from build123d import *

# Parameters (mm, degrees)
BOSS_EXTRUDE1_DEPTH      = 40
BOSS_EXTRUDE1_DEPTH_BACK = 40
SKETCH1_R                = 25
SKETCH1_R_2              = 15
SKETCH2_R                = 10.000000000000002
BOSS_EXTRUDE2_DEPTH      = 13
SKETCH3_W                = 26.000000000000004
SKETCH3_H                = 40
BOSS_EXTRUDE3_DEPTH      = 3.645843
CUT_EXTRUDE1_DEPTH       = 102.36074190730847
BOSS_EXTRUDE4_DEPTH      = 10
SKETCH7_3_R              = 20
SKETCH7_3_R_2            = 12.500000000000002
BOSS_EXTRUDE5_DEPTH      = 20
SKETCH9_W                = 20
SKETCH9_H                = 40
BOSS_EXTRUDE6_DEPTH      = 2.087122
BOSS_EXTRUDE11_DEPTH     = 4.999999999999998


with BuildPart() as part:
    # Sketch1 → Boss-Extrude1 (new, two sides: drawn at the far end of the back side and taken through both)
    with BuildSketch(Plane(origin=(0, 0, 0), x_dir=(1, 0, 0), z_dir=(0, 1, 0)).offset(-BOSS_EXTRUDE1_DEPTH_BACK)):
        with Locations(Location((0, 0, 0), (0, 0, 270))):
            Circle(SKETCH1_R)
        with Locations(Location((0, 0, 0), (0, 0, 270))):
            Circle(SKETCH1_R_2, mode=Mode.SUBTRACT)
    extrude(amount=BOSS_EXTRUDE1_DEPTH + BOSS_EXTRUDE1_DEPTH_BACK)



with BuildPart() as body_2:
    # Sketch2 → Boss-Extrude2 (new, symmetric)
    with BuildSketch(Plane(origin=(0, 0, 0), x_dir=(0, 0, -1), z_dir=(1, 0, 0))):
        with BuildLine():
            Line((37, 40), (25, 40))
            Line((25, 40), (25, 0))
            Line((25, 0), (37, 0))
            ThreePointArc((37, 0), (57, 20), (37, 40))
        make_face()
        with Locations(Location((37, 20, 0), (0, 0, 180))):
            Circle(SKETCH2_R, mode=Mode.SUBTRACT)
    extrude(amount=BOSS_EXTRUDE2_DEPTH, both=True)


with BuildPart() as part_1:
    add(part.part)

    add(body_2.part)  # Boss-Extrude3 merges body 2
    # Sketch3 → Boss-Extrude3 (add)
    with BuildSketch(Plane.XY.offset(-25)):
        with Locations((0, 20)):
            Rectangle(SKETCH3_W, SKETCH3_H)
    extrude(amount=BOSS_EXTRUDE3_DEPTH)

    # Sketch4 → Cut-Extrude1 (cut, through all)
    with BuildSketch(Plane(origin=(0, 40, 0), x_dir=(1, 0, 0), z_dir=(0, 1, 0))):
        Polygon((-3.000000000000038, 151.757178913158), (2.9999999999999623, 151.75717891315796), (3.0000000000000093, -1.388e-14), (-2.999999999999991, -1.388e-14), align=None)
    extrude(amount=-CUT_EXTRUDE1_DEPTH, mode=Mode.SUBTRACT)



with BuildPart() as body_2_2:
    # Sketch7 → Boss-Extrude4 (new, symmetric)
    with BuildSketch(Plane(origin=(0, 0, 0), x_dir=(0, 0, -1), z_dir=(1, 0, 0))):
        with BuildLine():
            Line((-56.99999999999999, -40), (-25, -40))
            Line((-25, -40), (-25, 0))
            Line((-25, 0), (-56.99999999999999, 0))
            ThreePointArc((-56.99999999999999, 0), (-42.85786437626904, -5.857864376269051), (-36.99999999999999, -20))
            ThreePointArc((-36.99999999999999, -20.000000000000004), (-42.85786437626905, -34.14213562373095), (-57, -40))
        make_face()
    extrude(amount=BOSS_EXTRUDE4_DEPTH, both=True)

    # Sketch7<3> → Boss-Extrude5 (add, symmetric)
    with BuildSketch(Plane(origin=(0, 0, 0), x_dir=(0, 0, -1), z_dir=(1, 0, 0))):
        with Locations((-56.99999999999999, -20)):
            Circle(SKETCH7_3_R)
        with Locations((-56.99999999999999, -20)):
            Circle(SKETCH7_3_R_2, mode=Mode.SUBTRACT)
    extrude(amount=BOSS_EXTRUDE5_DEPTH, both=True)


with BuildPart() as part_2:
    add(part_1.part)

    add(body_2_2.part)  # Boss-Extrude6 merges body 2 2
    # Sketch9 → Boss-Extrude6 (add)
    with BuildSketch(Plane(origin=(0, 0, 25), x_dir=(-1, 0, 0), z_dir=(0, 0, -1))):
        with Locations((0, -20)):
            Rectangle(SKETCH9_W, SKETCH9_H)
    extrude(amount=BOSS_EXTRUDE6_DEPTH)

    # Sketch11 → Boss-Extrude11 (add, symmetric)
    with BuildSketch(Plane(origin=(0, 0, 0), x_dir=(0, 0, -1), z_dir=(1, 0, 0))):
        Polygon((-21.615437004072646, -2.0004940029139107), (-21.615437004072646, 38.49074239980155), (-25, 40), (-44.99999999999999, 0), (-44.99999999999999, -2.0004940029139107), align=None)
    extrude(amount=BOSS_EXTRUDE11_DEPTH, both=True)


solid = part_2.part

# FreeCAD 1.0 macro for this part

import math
import FreeCAD as App
import Part
import Sketcher
from FreeCAD import Vector
Q = App.Units.Quantity

doc = App.newDocument("Part")
params = doc.addObject("Spreadsheet::Sheet", "Params")
for row, (alias, value) in enumerate([
    ("sketch1_diameter", "50 mm"),
    ("sketch1_diameter2", "30 mm"),
    ("pad1_length", "40 mm"),
    ("pad1_length2", "40 mm"),
    ("sketch2_diameter", "20 mm"),
    ("sketch2_radius", "20 mm"),
    ("sketch2_height", "12 mm"),
    ("pad2_length", "26 mm"),
    ("sketch3_width", "26 mm"),
    ("sketch3_height", "40 mm"),
    ("pad3_length", "3.645843 mm"),
    ("sketch4_width", "6 mm"),
    ("sketch5_radius", "20 mm"),
    ("sketch5_height", "32 mm"),
    ("pad4_length", "20 mm"),
    ("sketch6_diameter", "40 mm"),
    ("sketch6_diameter2", "25 mm"),
    ("pad5_length", "40 mm"),
    ("sketch7_width", "20 mm"),
    ("sketch7_height", "40 mm"),
    ("pad6_length", "2.087122 mm"),
    ("pad7_length", "10 mm"),
], start=1):
    params.set(f"A{row}", alias)
    params.set(f"B{row}", "=" + value)
    params.setAlias(f"B{row}", alias)

body = doc.addObject("PartDesign::Body", "Body")

# Sketch on XZ plane
sketch1 = body.newObject("Sketcher::SketchObject", "Sketch")
sketch1.AttachmentSupport = (doc.getObject("XZ_Plane"), [""])
sketch1.MapMode = "FlatFace"
sketch1.addGeometry(Part.Circle(Vector(0, 0, 0), Vector(0, 0, 1), 25), False)
sketch1.addGeometry(Part.Circle(Vector(0, 0, 0), Vector(0, 0, 1), 15), False)
sketch1.addConstraint(Sketcher.Constraint("Coincident", 0, 3, -1, 1))
sketch1.addConstraint(Sketcher.Constraint("Coincident", 1, 3, -1, 1))
sketch1.addConstraint(Sketcher.Constraint("Diameter", 0, Q("50 mm")))
sketch1.addConstraint(Sketcher.Constraint("Diameter", 1, Q("30 mm")))
sketch1.setExpression("Constraints[2]", "Params.sketch1_diameter")
sketch1.setExpression("Constraints[3]", "Params.sketch1_diameter2")
pad1 = body.newObject("PartDesign::Pad", "Pad")
pad1.Profile = sketch1
pad1.Type = "TwoLengths"
pad1.setExpression("Length", "Params.pad1_length")
pad1.setExpression("Length2", "Params.pad1_length2")
pad1.Reversed = True
body2 = doc.addObject("PartDesign::Body", "Body001")

# Sketch on YZ plane
sketch2 = body2.newObject("Sketcher::SketchObject", "Sketch001")
sketch2.AttachmentSupport = (doc.getObject("YZ_Plane001"), [""])
sketch2.MapMode = "FlatFace"
sketch2.addGeometry(Part.LineSegment(Vector(40, -37, 0), Vector(40, -25, 0)), False)
sketch2.addGeometry(Part.LineSegment(Vector(40, -25, 0), Vector(0, -25, 0)), False)
sketch2.addGeometry(Part.LineSegment(Vector(0, -25, 0), Vector(0, -37, 0)), False)
sketch2.addGeometry(Part.ArcOfCircle(Part.Circle(Vector(20, -37, 0), Vector(0, 0, 1), 20), math.radians(180), math.radians(360)), False)
sketch2.addGeometry(Part.Circle(Vector(20, -37, 0), Vector(0, 0, 1), 10), False)
sketch2.addConstraint(Sketcher.Constraint("Coincident", 0, 2, 1, 1))
sketch2.addConstraint(Sketcher.Constraint("Coincident", 1, 2, 2, 1))
sketch2.addConstraint(Sketcher.Constraint("Tangent", 2, 2, 3, 1))
sketch2.addConstraint(Sketcher.Constraint("Tangent", 3, 2, 0, 1))
sketch2.addConstraint(Sketcher.Constraint("Vertical", 0))
sketch2.addConstraint(Sketcher.Constraint("Horizontal", 1))
sketch2.addConstraint(Sketcher.Constraint("Vertical", 2))
sketch2.addConstraint(Sketcher.Constraint("Coincident", 4, 3, 3, 3))
sketch2.addConstraint(Sketcher.Constraint("PointOnObject", 1, 2, -2))
sketch2.addConstraint(Sketcher.Constraint("Diameter", 4, Q("20 mm")))
sketch2.addConstraint(Sketcher.Constraint("Radius", 3, Q("20 mm")))
sketch2.addConstraint(Sketcher.Constraint("DistanceY", 0, 1, 0, 2, Q("12 mm")))
sketch2.addConstraint(Sketcher.Constraint("DistanceY", 3, 3, -1, 1, Q("37 mm")))
sketch2.setExpression("Constraints[9]", "Params.sketch2_diameter")
sketch2.setExpression("Constraints[10]", "Params.sketch2_radius")
sketch2.setExpression("Constraints[11]", "Params.sketch2_height")
pad2 = body2.newObject("PartDesign::Pad", "Pad001")
pad2.Profile = sketch2
pad2.setExpression("Length", "Params.pad2_length")
pad2.Midplane = True
body.AllowCompound = True
doc.recompute()

boolean = body.newObject("PartDesign::Boolean", "Boolean")
boolean.Type = "Fuse"
boolean.addObjects([body2])

# Sketch on XY plane
sketch3 = body.newObject("Sketcher::SketchObject", "Sketch002")
sketch3.AttachmentSupport = (doc.getObject("XY_Plane"), [""])
sketch3.MapMode = "FlatFace"
sketch3.AttachmentOffset = App.Placement(Vector(0, 0, -25), App.Rotation())
sketch3.addGeometry(Part.LineSegment(Vector(-13, 40, 0), Vector(-13, 0, 0)), False)
sketch3.addGeometry(Part.LineSegment(Vector(-13, 0, 0), Vector(13, 0, 0)), False)
sketch3.addGeometry(Part.LineSegment(Vector(13, 0, 0), Vector(13, 40, 0)), False)
sketch3.addGeometry(Part.LineSegment(Vector(13, 40, 0), Vector(-13, 40, 0)), False)
sketch3.addConstraint(Sketcher.Constraint("Coincident", 0, 2, 1, 1))
sketch3.addConstraint(Sketcher.Constraint("Coincident", 1, 2, 2, 1))
sketch3.addConstraint(Sketcher.Constraint("Coincident", 2, 2, 3, 1))
sketch3.addConstraint(Sketcher.Constraint("Coincident", 3, 2, 0, 1))
sketch3.addConstraint(Sketcher.Constraint("Vertical", 0))
sketch3.addConstraint(Sketcher.Constraint("Horizontal", 1))
sketch3.addConstraint(Sketcher.Constraint("Vertical", 2))
sketch3.addConstraint(Sketcher.Constraint("Horizontal", 3))
sketch3.addConstraint(Sketcher.Constraint("Symmetric", 0, 2, 1, 2, -1, 1))
sketch3.addConstraint(Sketcher.Constraint("DistanceX", 1, 1, 1, 2, Q("26 mm")))
sketch3.addConstraint(Sketcher.Constraint("DistanceY", 0, 2, 0, 1, Q("40 mm")))
sketch3.setExpression("Constraints[9]", "Params.sketch3_width")
sketch3.setExpression("Constraints[10]", "Params.sketch3_height")
pad3 = body.newObject("PartDesign::Pad", "Pad002")
pad3.Profile = sketch3
pad3.setExpression("Length", "Params.pad3_length")

# Sketch on XZ plane
sketch4 = body.newObject("Sketcher::SketchObject", "Sketch003")
sketch4.AttachmentSupport = (doc.getObject("XZ_Plane"), [""])
sketch4.MapMode = "FlatFace"
sketch4.AttachmentOffset = App.Placement(Vector(0, 0, -40), App.Rotation())
sketch4.addGeometry(Part.LineSegment(Vector(3, -152, 0), Vector(-3, -152, 0)), False)
sketch4.addGeometry(Part.LineSegment(Vector(-3, -152, 0), Vector(-3, 0, 0)), False)
sketch4.addGeometry(Part.LineSegment(Vector(-3, 0, 0), Vector(3, 0, 0)), False)
sketch4.addGeometry(Part.LineSegment(Vector(3, 0, 0), Vector(3, -152, 0)), False)
sketch4.addConstraint(Sketcher.Constraint("Coincident", 0, 2, 1, 1))
sketch4.addConstraint(Sketcher.Constraint("Coincident", 1, 2, 2, 1))
sketch4.addConstraint(Sketcher.Constraint("Coincident", 2, 2, 3, 1))
sketch4.addConstraint(Sketcher.Constraint("Coincident", 3, 2, 0, 1))
sketch4.addConstraint(Sketcher.Constraint("Horizontal", 0))
sketch4.addConstraint(Sketcher.Constraint("Vertical", 1))
sketch4.addConstraint(Sketcher.Constraint("Horizontal", 2))
sketch4.addConstraint(Sketcher.Constraint("Vertical", 3))
sketch4.addConstraint(Sketcher.Constraint("Symmetric", 1, 2, 2, 2, -1, 1))
sketch4.addConstraint(Sketcher.Constraint("DistanceX", 0, 2, 0, 1, Q("6 mm")))
sketch4.addConstraint(Sketcher.Constraint("DistanceY", 1, 1, 1, 2, Q("151.757179 mm")))
sketch4.setExpression("Constraints[9]", "Params.sketch4_width")
pocket1 = body.newObject("PartDesign::Pocket", "Pocket")
pocket1.Profile = sketch4
pocket1.Type = "ThroughAll"
pocket1.Reversed = True
body3 = doc.addObject("PartDesign::Body", "Body002")

# Sketch on YZ plane
sketch5 = body3.newObject("Sketcher::SketchObject", "Sketch004")
sketch5.AttachmentSupport = (doc.getObject("YZ_Plane002"), [""])
sketch5.MapMode = "FlatFace"
sketch5.addGeometry(Part.LineSegment(Vector(-40, 57, 0), Vector(-40, 25, 0)), False)
sketch5.addGeometry(Part.LineSegment(Vector(-40, 25, 0), Vector(0, 25, 0)), False)
sketch5.addGeometry(Part.LineSegment(Vector(0, 25, 0), Vector(0, 57, 0)), False)
sketch5.addGeometry(Part.ArcOfCircle(Part.Circle(Vector(-20, 57, 0), Vector(0, 0, 1), 20), math.radians(180), math.radians(360)), False)
sketch5.addConstraint(Sketcher.Constraint("Coincident", 0, 2, 1, 1))
sketch5.addConstraint(Sketcher.Constraint("Coincident", 1, 2, 2, 1))
sketch5.addConstraint(Sketcher.Constraint("Tangent", 2, 2, 3, 2))
sketch5.addConstraint(Sketcher.Constraint("Tangent", 3, 1, 0, 1))
sketch5.addConstraint(Sketcher.Constraint("Vertical", 0))
sketch5.addConstraint(Sketcher.Constraint("Horizontal", 1))
sketch5.addConstraint(Sketcher.Constraint("Vertical", 2))
sketch5.addConstraint(Sketcher.Constraint("PointOnObject", 1, 2, -2))
sketch5.addConstraint(Sketcher.Constraint("Radius", 3, Q("20 mm")))
sketch5.addConstraint(Sketcher.Constraint("DistanceY", 0, 2, 0, 1, Q("32 mm")))
sketch5.addConstraint(Sketcher.Constraint("DistanceY", -1, 1, 3, 3, Q("57 mm")))
sketch5.setExpression("Constraints[8]", "Params.sketch5_radius")
sketch5.setExpression("Constraints[9]", "Params.sketch5_height")
pad4 = body3.newObject("PartDesign::Pad", "Pad003")
pad4.Profile = sketch5
pad4.setExpression("Length", "Params.pad4_length")
pad4.Midplane = True

# Sketch on YZ plane
sketch6 = body3.newObject("Sketcher::SketchObject", "Sketch005")
sketch6.AttachmentSupport = (doc.getObject("YZ_Plane002"), [""])
sketch6.MapMode = "FlatFace"
sketch6.addGeometry(Part.Circle(Vector(-20, 57, 0), Vector(0, 0, 1), 20), False)
sketch6.addGeometry(Part.Circle(Vector(-20, 57, 0), Vector(0, 0, 1), 12), False)
sketch6.addConstraint(Sketcher.Constraint("Coincident", 1, 3, 0, 3))
sketch6.addConstraint(Sketcher.Constraint("Diameter", 0, Q("40 mm")))
sketch6.addConstraint(Sketcher.Constraint("Diameter", 1, Q("25 mm")))
sketch6.addConstraint(Sketcher.Constraint("DistanceX", 0, 3, -1, 1, Q("20 mm")))
sketch6.addConstraint(Sketcher.Constraint("DistanceY", -1, 1, 0, 3, Q("57 mm")))
sketch6.setExpression("Constraints[1]", "Params.sketch6_diameter")
sketch6.setExpression("Constraints[2]", "Params.sketch6_diameter2")
pad5 = body3.newObject("PartDesign::Pad", "Pad004")
pad5.Profile = sketch6
pad5.setExpression("Length", "Params.pad5_length")
pad5.Midplane = True
body.AllowCompound = True
doc.recompute()

boolean2 = body.newObject("PartDesign::Boolean", "Boolean001")
boolean2.Type = "Fuse"
boolean2.addObjects([body3])

# Sketch on XY plane
sketch7 = body.newObject("Sketcher::SketchObject", "Sketch006")
sketch7.AttachmentSupport = (doc.getObject("XY_Plane"), [""])
sketch7.MapMode = "FlatFace"
sketch7.AttachmentOffset = App.Placement(Vector(0, 0, 25), App.Rotation())
sketch7.addGeometry(Part.LineSegment(Vector(10, 0, 0), Vector(10, -40, 0)), False)
sketch7.addGeometry(Part.LineSegment(Vector(10, -40, 0), Vector(-10, -40, 0)), False)
sketch7.addGeometry(Part.LineSegment(Vector(-10, -40, 0), Vector(-10, 0, 0)), False)
sketch7.addGeometry(Part.LineSegment(Vector(-10, 0, 0), Vector(10, 0, 0)), False)
sketch7.addConstraint(Sketcher.Constraint("Coincident", 0, 2, 1, 1))
sketch7.addConstraint(Sketcher.Constraint("Coincident", 1, 2, 2, 1))
sketch7.addConstraint(Sketcher.Constraint("Coincident", 2, 2, 3, 1))
sketch7.addConstraint(Sketcher.Constraint("Coincident", 3, 2, 0, 1))
sketch7.addConstraint(Sketcher.Constraint("Vertical", 0))
sketch7.addConstraint(Sketcher.Constraint("Horizontal", 1))
sketch7.addConstraint(Sketcher.Constraint("Vertical", 2))
sketch7.addConstraint(Sketcher.Constraint("Horizontal", 3))
sketch7.addConstraint(Sketcher.Constraint("Symmetric", 2, 2, 3, 2, -1, 1))
sketch7.addConstraint(Sketcher.Constraint("DistanceX", 1, 2, 1, 1, Q("20 mm")))
sketch7.addConstraint(Sketcher.Constraint("DistanceY", 0, 2, 0, 1, Q("40 mm")))
sketch7.setExpression("Constraints[9]", "Params.sketch7_width")
sketch7.setExpression("Constraints[10]", "Params.sketch7_height")
pad6 = body.newObject("PartDesign::Pad", "Pad005")
pad6.Profile = sketch7
pad6.setExpression("Length", "Params.pad6_length")
pad6.Reversed = True

# Sketch on YZ plane
sketch8 = body.newObject("Sketcher::SketchObject", "Sketch007")
sketch8.AttachmentSupport = (doc.getObject("YZ_Plane"), [""])
sketch8.MapMode = "FlatFace"
sketch8.addGeometry(Part.LineSegment(Vector(-2, 21.6, 0), Vector(38.5, 21.6, 0)), False)
sketch8.addGeometry(Part.LineSegment(Vector(38.5, 21.6, 0), Vector(40, 25, 0)), False)
sketch8.addGeometry(Part.LineSegment(Vector(40, 25, 0), Vector(0, 45, 0)), False)
sketch8.addGeometry(Part.LineSegment(Vector(0, 45, 0), Vector(-2, 45, 0)), False)
sketch8.addGeometry(Part.LineSegment(Vector(-2, 45, 0), Vector(-2, 21.6, 0)), False)
sketch8.addConstraint(Sketcher.Constraint("Coincident", 0, 2, 1, 1))
sketch8.addConstraint(Sketcher.Constraint("Coincident", 1, 2, 2, 1))
sketch8.addConstraint(Sketcher.Constraint("Coincident", 2, 2, 3, 1))
sketch8.addConstraint(Sketcher.Constraint("Coincident", 3, 2, 4, 1))
sketch8.addConstraint(Sketcher.Constraint("Coincident", 4, 2, 0, 1))
sketch8.addConstraint(Sketcher.Constraint("Horizontal", 0))
sketch8.addConstraint(Sketcher.Constraint("Horizontal", 3))
sketch8.addConstraint(Sketcher.Constraint("Vertical", 4))
sketch8.addConstraint(Sketcher.Constraint("PointOnObject", 2, 2, -2))
sketch8.addConstraint(Sketcher.Constraint("DistanceX", -1, 1, 1, 2, Q("40 mm")))
sketch8.addConstraint(Sketcher.Constraint("DistanceY", -1, 1, 1, 2, Q("25 mm")))
sketch8.addConstraint(Sketcher.Constraint("DistanceY", -1, 1, 2, 2, Q("45 mm")))
sketch8.addConstraint(Sketcher.Constraint("DistanceX", 0, 1, 0, 2, Q("40.491236 mm")))
sketch8.addConstraint(Sketcher.Constraint("DistanceX", 3, 2, 3, 1, Q("2.000494 mm")))
sketch8.addConstraint(Sketcher.Constraint("DistanceY", 4, 2, 4, 1, Q("23.384563 mm")))
pad7 = body.newObject("PartDesign::Pad", "Pad006")
pad7.Profile = sketch8
pad7.setExpression("Length", "Params.pad7_length")
pad7.Midplane = True

doc.recompute()
